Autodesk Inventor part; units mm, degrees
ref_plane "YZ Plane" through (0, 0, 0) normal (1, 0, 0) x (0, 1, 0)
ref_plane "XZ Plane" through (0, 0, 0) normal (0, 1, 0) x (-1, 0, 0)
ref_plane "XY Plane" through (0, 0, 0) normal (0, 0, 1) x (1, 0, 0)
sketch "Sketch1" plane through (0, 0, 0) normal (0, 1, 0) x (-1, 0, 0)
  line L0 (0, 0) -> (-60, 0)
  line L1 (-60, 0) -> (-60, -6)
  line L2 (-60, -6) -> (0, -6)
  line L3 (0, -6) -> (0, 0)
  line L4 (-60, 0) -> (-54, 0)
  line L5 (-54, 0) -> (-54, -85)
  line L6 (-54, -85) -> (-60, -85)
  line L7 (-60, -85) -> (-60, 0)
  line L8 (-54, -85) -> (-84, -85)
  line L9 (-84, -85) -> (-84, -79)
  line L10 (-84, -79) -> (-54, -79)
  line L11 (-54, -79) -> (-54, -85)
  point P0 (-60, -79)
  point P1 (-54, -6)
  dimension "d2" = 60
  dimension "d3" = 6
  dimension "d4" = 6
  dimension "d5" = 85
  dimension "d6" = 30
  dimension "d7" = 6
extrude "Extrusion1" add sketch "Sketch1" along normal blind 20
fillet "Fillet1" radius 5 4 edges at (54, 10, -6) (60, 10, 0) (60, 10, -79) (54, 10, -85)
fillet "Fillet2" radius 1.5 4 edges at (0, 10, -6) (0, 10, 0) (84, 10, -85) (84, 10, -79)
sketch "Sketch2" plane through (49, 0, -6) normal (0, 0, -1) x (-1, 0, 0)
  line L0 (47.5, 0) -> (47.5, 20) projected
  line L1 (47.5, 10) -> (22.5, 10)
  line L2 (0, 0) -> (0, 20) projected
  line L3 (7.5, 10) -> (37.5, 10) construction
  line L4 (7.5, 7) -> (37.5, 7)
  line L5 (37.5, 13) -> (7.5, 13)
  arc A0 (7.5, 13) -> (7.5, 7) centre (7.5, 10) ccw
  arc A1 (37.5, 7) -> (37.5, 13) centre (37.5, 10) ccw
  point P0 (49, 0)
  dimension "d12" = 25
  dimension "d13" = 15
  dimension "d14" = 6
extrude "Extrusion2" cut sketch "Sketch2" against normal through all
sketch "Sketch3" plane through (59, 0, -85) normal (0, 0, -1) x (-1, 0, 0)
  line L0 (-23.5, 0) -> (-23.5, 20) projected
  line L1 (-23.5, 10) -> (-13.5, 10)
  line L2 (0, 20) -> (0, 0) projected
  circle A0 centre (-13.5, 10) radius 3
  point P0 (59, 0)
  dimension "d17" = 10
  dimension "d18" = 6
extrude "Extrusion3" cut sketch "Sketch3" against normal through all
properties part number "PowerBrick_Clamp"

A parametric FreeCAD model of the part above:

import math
import FreeCAD as App
import Part
import Sketcher
from FreeCAD import Vector


def edges_at(feature, points):
    """Names of the edges that pass closest to the given points."""
    edges = feature.Shape.Edges
    near = lambda p: min(range(len(edges)), key=lambda i: edges[i].distToShape(Part.Vertex(*p))[0])
    return sorted({f"Edge{near(p) + 1}" for p in points})


def add_polygon(sketch, points):
    """Adds a closed chain of lines whose ends are joined by coincident constraints."""
    first, n = sketch.GeometryCount, len(points)
    for a, b in zip(points, points[1:] + points[:1]):
        sketch.addGeometry(Part.LineSegment(App.Vector(*a, 0), App.Vector(*b, 0)), False)
    for i in range(n):
        sketch.addConstraint(Sketcher.Constraint("Coincident", first + i, 2, first + (i + 1) % n, 1))

doc = App.newDocument("Part")
params = doc.addObject("Spreadsheet::Sheet", "Params")
for row, (alias, value) in enumerate([
    ("sketch1_width", "60 mm"),
    ("sketch1_width2", "30 mm"),
    ("sketch1_height", "6 mm"),
    ("pad1_length", "20 mm"),
    ("fillet_radius", "5 mm"),
    ("fillet2_radius", "1.5 mm"),
    ("sketch2_radius", "3 mm"),
    ("sketch2_width", "30 mm"),
    ("sketch3_diameter", "6 mm"),
], start=1):
    params.set(f"A{row}", alias)
    params.set(f"B{row}", "=" + value)
    params.setAlias(f"B{row}", alias)

body = doc.addObject("PartDesign::Body", "Body")

# Sketch on XZ plane
sketch1 = body.newObject("Sketcher::SketchObject", "Sketch")
sketch1.AttachmentSupport = (doc.getObject("XZ_Plane"), [""])
sketch1.MapMode = "FlatFace"
add_polygon(sketch1, [(0, -6), (0, 0), (60, 0), (60, -79), (84, -79), (84, -85), (54, -85), (54, -6)])  # lines 0-7
sketch1.addConstraint(Sketcher.Constraint("Vertical", 0))
sketch1.addConstraint(Sketcher.Constraint("Horizontal", 1))
sketch1.addConstraint(Sketcher.Constraint("Vertical", 2))
sketch1.addConstraint(Sketcher.Constraint("Horizontal", 3))
sketch1.addConstraint(Sketcher.Constraint("Vertical", 4))
sketch1.addConstraint(Sketcher.Constraint("Horizontal", 5))
sketch1.addConstraint(Sketcher.Constraint("Vertical", 6))
sketch1.addConstraint(Sketcher.Constraint("Horizontal", 7))
sketch1.addConstraint(Sketcher.Constraint("Coincident", 0, 2, -1, 1))
sketch1.addConstraint(Sketcher.Constraint("Equal", 0, 4))
sketch1.addConstraint(Sketcher.Constraint("DistanceX", 1, 1, 1, 2, 60.0))
sketch1.addConstraint(Sketcher.Constraint("DistanceX", 5, 2, 5, 1, 30.0))
sketch1.addConstraint(Sketcher.Constraint("DistanceY", 0, 1, 0, 2, 6.0))
sketch1.addConstraint(Sketcher.Constraint("DistanceY", 4, 2, -1, 1, 85.0))
sketch1.addConstraint(Sketcher.Constraint("DistanceX", 5, 2, 2, 2, 6.0))
sketch1.setExpression("Constraints[18]", "Params.sketch1_width")
sketch1.setExpression("Constraints[19]", "Params.sketch1_width2")
sketch1.setExpression("Constraints[20]", "Params.sketch1_height")
pad1 = body.newObject("PartDesign::Pad", "Pad")
pad1.Profile = sketch1
pad1.setExpression("Length", "Params.pad1_length")
pad1.Reversed = True
doc.recompute()

fillet = body.newObject("PartDesign::Fillet", "Fillet")
fillet.Base = (pad1, edges_at(pad1, [
    (54, 10, -6),
    (60, 10, 0),
    (60, 10, -79),
    (54, 10, -85),
]))
fillet.setExpression("Radius", "Params.fillet_radius")
doc.recompute()

fillet2 = body.newObject("PartDesign::Fillet", "Fillet001")
fillet2.Base = (fillet, edges_at(fillet, [
    (0, 10, -6),
    (0, 10, 0),
    (84, 10, -85),
    (84, 10, -79),
]))
fillet2.setExpression("Radius", "Params.fillet2_radius")

# Sketch on XY plane
sketch2 = body.newObject("Sketcher::SketchObject", "Sketch001")
sketch2.AttachmentSupport = (doc.getObject("XY_Plane"), [""])
sketch2.MapMode = "FlatFace"
sketch2.AttachmentOffset = App.Placement(Vector(0, 0, -6), App.Rotation())
sketch2.addGeometry(Part.ArcOfCircle(Part.Circle(Vector(41.5, 10, 0), Vector(0, 0, 1), 3), math.radians(-90), math.radians(90)), False)
sketch2.addGeometry(Part.LineSegment(Vector(41.5, 7, 0), Vector(11.5, 7, 0)), False)
sketch2.addGeometry(Part.ArcOfCircle(Part.Circle(Vector(11.5, 10, 0), Vector(0, 0, 1), 3), math.radians(90), math.radians(270)), False)
sketch2.addGeometry(Part.LineSegment(Vector(11.5, 13, 0), Vector(41.5, 13, 0)), False)
sketch2.addConstraint(Sketcher.Constraint("Tangent", 0, 1, 1, 1))
sketch2.addConstraint(Sketcher.Constraint("Tangent", 1, 2, 2, 2))
sketch2.addConstraint(Sketcher.Constraint("Tangent", 2, 1, 3, 1))
sketch2.addConstraint(Sketcher.Constraint("Tangent", 3, 2, 0, 2))
sketch2.addConstraint(Sketcher.Constraint("Horizontal", 1))
sketch2.addConstraint(Sketcher.Constraint("Horizontal", 3))
sketch2.addConstraint(Sketcher.Constraint("Radius", 0, 3.0))
sketch2.addConstraint(Sketcher.Constraint("DistanceX", 1, 2, 1, 1, 30.0))
sketch2.addConstraint(Sketcher.Constraint("DistanceY", -1, 1, 0, 3, 10.0))
sketch2.addConstraint(Sketcher.Constraint("DistanceX", -1, 1, 0, 3, 41.5))
sketch2.setExpression("Constraints[6]", "Params.sketch2_radius")
sketch2.setExpression("Constraints[7]", "Params.sketch2_width")
pocket1 = body.newObject("PartDesign::Pocket", "Pocket")
pocket1.Profile = sketch2
pocket1.Type = "ThroughAll"
pocket1.Reversed = True

# Sketch on XY plane
sketch3 = body.newObject("Sketcher::SketchObject", "Sketch002")
sketch3.AttachmentSupport = (doc.getObject("XY_Plane"), [""])
sketch3.MapMode = "FlatFace"
sketch3.AttachmentOffset = App.Placement(Vector(0, 0, -85), App.Rotation())
sketch3.addGeometry(Part.Circle(Vector(72.5, 10, 0), Vector(0, 0, 1), 3), False)
sketch3.addConstraint(Sketcher.Constraint("Diameter", 0, 6.0))
sketch3.addConstraint(Sketcher.Constraint("DistanceY", -1, 1, 0, 3, 10.0))
sketch3.addConstraint(Sketcher.Constraint("DistanceX", -1, 1, 0, 3, 72.5))
sketch3.setExpression("Constraints[0]", "Params.sketch3_diameter")
pocket2 = body.newObject("PartDesign::Pocket", "Pocket001")
pocket2.Profile = sketch3
pocket2.Type = "ThroughAll"
pocket2.Reversed = True

doc.recompute()
